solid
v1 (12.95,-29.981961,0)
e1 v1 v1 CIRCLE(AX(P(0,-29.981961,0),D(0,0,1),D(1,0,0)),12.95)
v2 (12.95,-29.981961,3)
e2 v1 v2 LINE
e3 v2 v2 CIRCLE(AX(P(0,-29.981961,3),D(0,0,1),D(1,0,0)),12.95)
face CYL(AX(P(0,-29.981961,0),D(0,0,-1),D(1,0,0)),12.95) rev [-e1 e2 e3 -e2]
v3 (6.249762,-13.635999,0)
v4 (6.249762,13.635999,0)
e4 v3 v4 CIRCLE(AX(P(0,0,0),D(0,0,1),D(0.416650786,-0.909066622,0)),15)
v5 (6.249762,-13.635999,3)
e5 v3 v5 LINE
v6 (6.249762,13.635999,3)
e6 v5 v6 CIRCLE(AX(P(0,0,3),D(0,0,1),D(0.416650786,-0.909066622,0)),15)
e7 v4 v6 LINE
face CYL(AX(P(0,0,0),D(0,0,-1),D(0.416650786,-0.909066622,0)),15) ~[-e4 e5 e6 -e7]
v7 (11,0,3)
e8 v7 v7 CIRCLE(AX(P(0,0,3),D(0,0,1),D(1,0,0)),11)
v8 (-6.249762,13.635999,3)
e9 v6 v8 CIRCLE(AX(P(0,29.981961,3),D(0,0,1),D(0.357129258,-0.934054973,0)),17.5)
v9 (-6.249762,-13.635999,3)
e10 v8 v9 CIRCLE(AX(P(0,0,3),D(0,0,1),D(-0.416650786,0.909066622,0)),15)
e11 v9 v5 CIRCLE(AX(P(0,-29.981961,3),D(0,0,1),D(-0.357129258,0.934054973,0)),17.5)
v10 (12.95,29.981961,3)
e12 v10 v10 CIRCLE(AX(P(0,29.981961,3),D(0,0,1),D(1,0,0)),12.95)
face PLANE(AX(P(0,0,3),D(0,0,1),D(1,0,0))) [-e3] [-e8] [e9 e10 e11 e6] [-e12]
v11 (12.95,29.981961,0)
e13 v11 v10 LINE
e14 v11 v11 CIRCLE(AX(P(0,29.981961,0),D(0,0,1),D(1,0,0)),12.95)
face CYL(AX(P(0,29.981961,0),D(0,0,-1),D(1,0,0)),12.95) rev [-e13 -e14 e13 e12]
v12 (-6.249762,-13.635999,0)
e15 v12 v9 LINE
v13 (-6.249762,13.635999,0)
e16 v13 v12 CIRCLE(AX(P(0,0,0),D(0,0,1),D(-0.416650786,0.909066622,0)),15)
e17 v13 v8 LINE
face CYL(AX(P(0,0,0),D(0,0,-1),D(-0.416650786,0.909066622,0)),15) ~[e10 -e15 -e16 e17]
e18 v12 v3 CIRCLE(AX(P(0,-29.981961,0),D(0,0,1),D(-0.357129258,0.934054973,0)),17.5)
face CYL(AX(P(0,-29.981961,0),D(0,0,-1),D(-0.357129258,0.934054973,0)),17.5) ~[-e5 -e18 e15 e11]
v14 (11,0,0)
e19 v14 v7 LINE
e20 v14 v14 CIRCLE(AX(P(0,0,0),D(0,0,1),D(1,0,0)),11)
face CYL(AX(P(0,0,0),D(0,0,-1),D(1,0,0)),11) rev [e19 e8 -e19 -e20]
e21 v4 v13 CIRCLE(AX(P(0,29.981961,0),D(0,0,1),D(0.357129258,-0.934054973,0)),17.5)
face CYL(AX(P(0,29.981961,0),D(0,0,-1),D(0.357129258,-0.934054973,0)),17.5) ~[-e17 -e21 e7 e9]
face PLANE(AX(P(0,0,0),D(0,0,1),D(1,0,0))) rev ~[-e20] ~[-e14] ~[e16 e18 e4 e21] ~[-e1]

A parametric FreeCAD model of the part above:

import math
import FreeCAD as App
import Part
import Sketcher
from FreeCAD import Vector
Q = App.Units.Quantity

doc = App.newDocument("Part")
body = doc.addObject("PartDesign::Body", "Body")

# Sketch on XY plane
sketch1 = doc.addObject("Sketcher::SketchObject", "Sketch")
body.addObject(sketch1)
sketch1.AttachmentSupport = (doc.XY_Plane, [""])
sketch1.MapMode = "FlatFace"
sketch1.addGeometry([
    Part.ArcOfCircle(Part.Circle(Vector(0, 30, 0), Vector(0, 0, 1), 17), math.radians(-69), math.radians(249)),  # 0
    Part.ArcOfCircle(Part.Circle(Vector(0, 0, 0), Vector(0, 0, 1), 15), math.radians(115), math.radians(245)),  # 1
    Part.ArcOfCircle(Part.Circle(Vector(0, -30, 0), Vector(0, 0, 1), 17), math.radians(111), math.radians(429)),  # 2
    Part.ArcOfCircle(Part.Circle(Vector(0, 0, 0), Vector(0, 0, 1), 15), math.radians(-65), math.radians(65)),  # 3
    Part.Circle(Vector(0, -30, 0), Vector(0, 0, 1), 13),  # 4
    Part.Circle(Vector(0, 0, 0), Vector(0, 0, 1), 11),  # 5
    Part.Circle(Vector(0, 30, 0), Vector(0, 0, 1), 13),  # 6
], False)
sketch1.addConstraint([
    Sketcher.Constraint("Coincident", 0, 2, 1, 1),
    Sketcher.Constraint("Coincident", 1, 2, 2, 1),
    Sketcher.Constraint("Coincident", 2, 2, 3, 1),
    Sketcher.Constraint("Coincident", 3, 2, 0, 1),
    Sketcher.Constraint("Coincident", 1, 3, -1, 1),
    Sketcher.Constraint("Coincident", 3, 3, -1, 1),
    Sketcher.Constraint("Coincident", 5, 3, -1, 1),
    Sketcher.Constraint("Coincident", 4, 3, 2, 3),
    Sketcher.Constraint("Coincident", 6, 3, 0, 3),
    Sketcher.Constraint("Equal", 0, 2),
    Sketcher.Constraint("Equal", 1, 3),
    Sketcher.Constraint("Equal", 4, 6),
    Sketcher.Constraint("Symmetric", 0, 3, 2, 3, -1, 1),
    Sketcher.Constraint("PointOnObject", 0, 3, -2),
    Sketcher.Constraint("Diameter", 5, Q("22 mm")),
    Sketcher.Constraint("Radius", 1, Q("15 mm")),
    Sketcher.Constraint("Diameter", 4, Q("25.9 mm")),
    Sketcher.Constraint("Radius", 0, Q("17.5 mm")),
    Sketcher.Constraint("DistanceY", -1, 1, 0, 2, Q("13.635999 mm")),
])
pad1 = doc.addObject("PartDesign::Pad", "Pad")
body.addObject(pad1)
pad1.Profile = sketch1
pad1.Length = 3

doc.recompute()
